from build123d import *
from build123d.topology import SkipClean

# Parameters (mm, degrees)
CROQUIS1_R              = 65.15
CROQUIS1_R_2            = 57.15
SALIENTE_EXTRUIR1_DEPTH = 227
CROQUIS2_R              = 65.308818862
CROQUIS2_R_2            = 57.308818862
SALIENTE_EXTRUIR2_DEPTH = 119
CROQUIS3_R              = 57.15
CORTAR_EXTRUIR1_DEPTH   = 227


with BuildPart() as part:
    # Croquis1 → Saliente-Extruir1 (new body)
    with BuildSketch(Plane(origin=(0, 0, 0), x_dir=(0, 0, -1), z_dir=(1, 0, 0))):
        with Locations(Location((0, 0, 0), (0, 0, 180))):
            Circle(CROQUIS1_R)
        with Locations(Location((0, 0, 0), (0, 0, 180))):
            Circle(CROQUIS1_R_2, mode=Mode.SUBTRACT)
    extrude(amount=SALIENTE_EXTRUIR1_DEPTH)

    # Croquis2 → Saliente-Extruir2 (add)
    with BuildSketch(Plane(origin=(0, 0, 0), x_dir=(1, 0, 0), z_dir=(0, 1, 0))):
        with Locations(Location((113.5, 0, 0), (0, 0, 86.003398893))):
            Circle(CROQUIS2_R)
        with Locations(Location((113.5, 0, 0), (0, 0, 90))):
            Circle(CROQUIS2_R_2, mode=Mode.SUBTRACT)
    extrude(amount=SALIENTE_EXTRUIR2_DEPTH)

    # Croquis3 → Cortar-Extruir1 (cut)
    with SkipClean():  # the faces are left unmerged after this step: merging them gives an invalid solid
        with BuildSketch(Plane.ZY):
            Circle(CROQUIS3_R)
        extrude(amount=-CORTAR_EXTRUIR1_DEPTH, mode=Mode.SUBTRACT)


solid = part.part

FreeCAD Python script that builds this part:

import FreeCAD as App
import Part
import Sketcher
from FreeCAD import Vector

doc = App.newDocument("Part")
params = doc.addObject("Spreadsheet::Sheet", "Params")
for row, (alias, value) in enumerate([
    ("sketch1_diameter", "130.3 mm"),
    ("sketch1_diameter2", "114.3 mm"),
    ("pad1_length", "227 mm"),
    ("pad2_length", "119 mm"),
    ("sketch3_diameter", "114.3 mm"),
    ("pocket1_length", "227 mm"),
], start=1):
    params.set(f"A{row}", alias)
    params.set(f"B{row}", "=" + value)
    params.setAlias(f"B{row}", alias)

body = doc.addObject("PartDesign::Body", "Body")

# Sketch on YZ plane
sketch1 = body.newObject("Sketcher::SketchObject", "Sketch")
sketch1.AttachmentSupport = (doc.getObject("YZ_Plane"), [""])
sketch1.MapMode = "FlatFace"
sketch1.addGeometry([
    Part.Circle(Vector(0, 0, 0), Vector(0, 0, 1), 65),
    Part.Circle(Vector(0, 0, 0), Vector(0, 0, 1), 57),
], False)
sketch1.addConstraint([
    Sketcher.Constraint("Coincident", 0, 3, -1, 1),
    Sketcher.Constraint("Coincident", 1, 3, -1, 1),
    Sketcher.Constraint("Diameter", 0, 130.3),
    Sketcher.Constraint("Diameter", 1, 114.3),
])
sketch1.setExpression("Constraints[2]", "Params.sketch1_diameter")
sketch1.setExpression("Constraints[3]", "Params.sketch1_diameter2")
pad1 = body.newObject("PartDesign::Pad", "Pad")
pad1.Profile = sketch1
pad1.setExpression("Length", "Params.pad1_length")

# Sketch on XZ plane
sketch2 = body.newObject("Sketcher::SketchObject", "Sketch001")
sketch2.AttachmentSupport = (doc.getObject("XZ_Plane"), [""])
sketch2.MapMode = "FlatFace"
sketch2.addGeometry([
    Part.Circle(Vector(114, 0, 0), Vector(0, 0, 1), 65),
    Part.Circle(Vector(114, 0, 0), Vector(0, 0, 1), 57),
], False)
sketch2.addConstraint([
    Sketcher.Constraint("Coincident", 1, 3, 0, 3),
    Sketcher.Constraint("PointOnObject", 0, 3, -1),
    Sketcher.Constraint("DistanceX", -1, 1, 0, 3, 113.5),
    Sketcher.Constraint("Diameter", 0, 130.617638),
    Sketcher.Constraint("Diameter", 1, 114.617638),
])
pad2 = body.newObject("PartDesign::Pad", "Pad001")
pad2.Profile = sketch2
pad2.setExpression("Length", "Params.pad2_length")
pad2.Reversed = True

# Sketch on YZ plane
sketch3 = body.newObject("Sketcher::SketchObject", "Sketch002")
sketch3.AttachmentSupport = (doc.getObject("YZ_Plane"), [""])
sketch3.MapMode = "FlatFace"
sketch3.addGeometry(Part.Circle(Vector(0, 0, 0), Vector(0, 0, 1), 57), False)
sketch3.addConstraint([
    Sketcher.Constraint("Coincident", 0, 3, -1, 1),
    Sketcher.Constraint("Diameter", 0, 114.3),
])
sketch3.setExpression("Constraints[1]", "Params.sketch3_diameter")
pocket1 = body.newObject("PartDesign::Pocket", "Pocket")
pocket1.Profile = sketch3
pocket1.setExpression("Length", "Params.pocket1_length")
pocket1.Reversed = True

doc.recompute()
